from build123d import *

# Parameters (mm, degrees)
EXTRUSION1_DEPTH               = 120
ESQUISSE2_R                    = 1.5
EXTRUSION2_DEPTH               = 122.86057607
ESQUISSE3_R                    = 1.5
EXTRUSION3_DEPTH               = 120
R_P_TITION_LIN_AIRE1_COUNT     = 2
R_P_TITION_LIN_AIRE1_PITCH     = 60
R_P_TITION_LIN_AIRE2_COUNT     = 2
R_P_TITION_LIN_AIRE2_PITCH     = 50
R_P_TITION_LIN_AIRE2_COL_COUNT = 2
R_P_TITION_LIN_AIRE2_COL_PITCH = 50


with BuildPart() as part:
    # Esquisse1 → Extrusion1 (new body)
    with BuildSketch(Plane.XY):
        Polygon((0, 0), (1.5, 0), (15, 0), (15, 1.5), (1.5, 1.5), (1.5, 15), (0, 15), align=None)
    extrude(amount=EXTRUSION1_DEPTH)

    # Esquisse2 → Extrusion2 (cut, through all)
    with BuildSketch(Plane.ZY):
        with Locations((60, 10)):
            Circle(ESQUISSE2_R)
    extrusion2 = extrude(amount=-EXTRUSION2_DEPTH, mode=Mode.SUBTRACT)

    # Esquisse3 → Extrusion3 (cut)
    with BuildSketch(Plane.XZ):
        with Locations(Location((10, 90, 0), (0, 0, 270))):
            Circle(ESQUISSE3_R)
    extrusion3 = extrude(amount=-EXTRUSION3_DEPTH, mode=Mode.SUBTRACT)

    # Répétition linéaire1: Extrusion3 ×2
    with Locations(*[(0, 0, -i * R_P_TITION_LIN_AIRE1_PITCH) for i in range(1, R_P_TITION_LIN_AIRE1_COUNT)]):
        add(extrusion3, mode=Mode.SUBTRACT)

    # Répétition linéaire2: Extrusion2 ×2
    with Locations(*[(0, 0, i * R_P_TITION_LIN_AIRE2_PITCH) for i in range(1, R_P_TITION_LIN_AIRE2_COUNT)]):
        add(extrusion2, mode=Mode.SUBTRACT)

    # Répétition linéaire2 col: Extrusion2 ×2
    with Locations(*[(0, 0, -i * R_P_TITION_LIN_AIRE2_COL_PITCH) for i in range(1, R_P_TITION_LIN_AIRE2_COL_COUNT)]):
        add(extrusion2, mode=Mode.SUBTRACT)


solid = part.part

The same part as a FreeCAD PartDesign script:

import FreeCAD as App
import Part
import Sketcher

doc = App.newDocument("Part")
body = doc.addObject("PartDesign::Body", "Body")

sketch1 = body.newObject("Sketcher::SketchObject", "Sketch")
sketch1.AttachmentSupport = (doc.getObject("XY_Plane"), [""])
sketch1.MapMode = "FlatFace"
sketch1.addGeometry([
    Part.LineSegment(App.Vector(0, 0, 0), App.Vector(15, 0, 0)),
    Part.LineSegment(App.Vector(15, 0, 0), App.Vector(15, 1.5, 0)),
    Part.LineSegment(App.Vector(15, 1.5, 0), App.Vector(1.5, 1.5, 0)),
    Part.LineSegment(App.Vector(1.5, 1.5, 0), App.Vector(1.5, 15, 0)),
    Part.LineSegment(App.Vector(1.5, 15, 0), App.Vector(0, 15, 0)),
    Part.LineSegment(App.Vector(0, 15, 0), App.Vector(0, 0, 0)),
], False)
sketch1.addConstraint([
    Sketcher.Constraint("Coincident", 0, 2, 1, 1),
    Sketcher.Constraint("Coincident", 1, 2, 2, 1),
    Sketcher.Constraint("Coincident", 2, 2, 3, 1),
    Sketcher.Constraint("Coincident", 3, 2, 4, 1),
    Sketcher.Constraint("Coincident", 4, 2, 5, 1),
    Sketcher.Constraint("Coincident", 5, 2, 0, 1),
    Sketcher.Constraint("Horizontal", 0),
    Sketcher.Constraint("Vertical", 1),
    Sketcher.Constraint("Horizontal", 2),
    Sketcher.Constraint("Vertical", 3),
    Sketcher.Constraint("Horizontal", 4),
    Sketcher.Constraint("Vertical", 5),
    Sketcher.Constraint("Coincident", 5, 2, -1, 1),
    Sketcher.Constraint("Equal", 4, 1),
    Sketcher.Constraint("Equal", 2, 3),
    Sketcher.Constraint("DistanceX", 0, 1, 0, 2, 15.0),
    Sketcher.Constraint("DistanceX", 2, 2, 2, 1, 13.5),
])
pad1 = body.newObject("PartDesign::Pad", "Pad")
pad1.Profile = sketch1
pad1.Length = 120

sketch2 = body.newObject("Sketcher::SketchObject", "Sketch001")
sketch2.AttachmentSupport = (doc.getObject("YZ_Plane"), [""])
sketch2.MapMode = "FlatFace"
sketch2.addGeometry(Part.Circle(App.Vector(10, 60, 0), App.Vector(0, 0, 1), 1.5), False)
sketch2.addConstraint([
    Sketcher.Constraint("Diameter", 0, 3.0),
    Sketcher.Constraint("DistanceX", -1, 1, 0, 3, 10.0),
    Sketcher.Constraint("DistanceY", -1, 1, 0, 3, 60.0),
])
pocket1 = body.newObject("PartDesign::Pocket", "Pocket")
pocket1.Profile = sketch2
pocket1.Type = "ThroughAll"
pocket1.Reversed = True

sketch3 = body.newObject("Sketcher::SketchObject", "Sketch002")
sketch3.AttachmentSupport = (doc.getObject("XZ_Plane"), [""])
sketch3.MapMode = "FlatFace"
sketch3.addGeometry(Part.Circle(App.Vector(10, 90, 0), App.Vector(0, 0, 1), 1.5), False)
sketch3.addConstraint([
    Sketcher.Constraint("Diameter", 0, 3.0),
    Sketcher.Constraint("DistanceX", -1, 1, 0, 3, 10.0),
    Sketcher.Constraint("DistanceY", -1, 1, 0, 3, 90.0),
])
pocket2 = body.newObject("PartDesign::Pocket", "Pocket001")
pocket2.Profile = sketch3
pocket2.Length = 120
doc.recompute()

linearpattern = body.newObject("PartDesign::LinearPattern", "LinearPattern")
linearpattern.Originals = [pocket2]
linearpattern.Direction = (doc.getObject("Z_Axis"), [""])
linearpattern.Mode = "offset"
linearpattern.Offset = 60
linearpattern.Occurrences = 2
linearpattern.Reversed = True
body.Tip = linearpattern
doc.recompute()

linearpattern2 = body.newObject("PartDesign::LinearPattern", "LinearPattern001")
linearpattern2.Originals = [pocket1]
linearpattern2.Direction = (doc.getObject("Z_Axis"), [""])
linearpattern2.Mode = "offset"
linearpattern2.Offset = 50
linearpattern2.Occurrences = 2
body.Tip = linearpattern2
doc.recompute()

linearpattern3 = body.newObject("PartDesign::LinearPattern", "LinearPattern002")
linearpattern3.Originals = [pocket1]
linearpattern3.Direction = (doc.getObject("Z_Axis"), [""])
linearpattern3.Mode = "offset"
linearpattern3.Offset = 50
linearpattern3.Occurrences = 2
linearpattern3.Reversed = True
body.Tip = linearpattern3

doc.recompute()
